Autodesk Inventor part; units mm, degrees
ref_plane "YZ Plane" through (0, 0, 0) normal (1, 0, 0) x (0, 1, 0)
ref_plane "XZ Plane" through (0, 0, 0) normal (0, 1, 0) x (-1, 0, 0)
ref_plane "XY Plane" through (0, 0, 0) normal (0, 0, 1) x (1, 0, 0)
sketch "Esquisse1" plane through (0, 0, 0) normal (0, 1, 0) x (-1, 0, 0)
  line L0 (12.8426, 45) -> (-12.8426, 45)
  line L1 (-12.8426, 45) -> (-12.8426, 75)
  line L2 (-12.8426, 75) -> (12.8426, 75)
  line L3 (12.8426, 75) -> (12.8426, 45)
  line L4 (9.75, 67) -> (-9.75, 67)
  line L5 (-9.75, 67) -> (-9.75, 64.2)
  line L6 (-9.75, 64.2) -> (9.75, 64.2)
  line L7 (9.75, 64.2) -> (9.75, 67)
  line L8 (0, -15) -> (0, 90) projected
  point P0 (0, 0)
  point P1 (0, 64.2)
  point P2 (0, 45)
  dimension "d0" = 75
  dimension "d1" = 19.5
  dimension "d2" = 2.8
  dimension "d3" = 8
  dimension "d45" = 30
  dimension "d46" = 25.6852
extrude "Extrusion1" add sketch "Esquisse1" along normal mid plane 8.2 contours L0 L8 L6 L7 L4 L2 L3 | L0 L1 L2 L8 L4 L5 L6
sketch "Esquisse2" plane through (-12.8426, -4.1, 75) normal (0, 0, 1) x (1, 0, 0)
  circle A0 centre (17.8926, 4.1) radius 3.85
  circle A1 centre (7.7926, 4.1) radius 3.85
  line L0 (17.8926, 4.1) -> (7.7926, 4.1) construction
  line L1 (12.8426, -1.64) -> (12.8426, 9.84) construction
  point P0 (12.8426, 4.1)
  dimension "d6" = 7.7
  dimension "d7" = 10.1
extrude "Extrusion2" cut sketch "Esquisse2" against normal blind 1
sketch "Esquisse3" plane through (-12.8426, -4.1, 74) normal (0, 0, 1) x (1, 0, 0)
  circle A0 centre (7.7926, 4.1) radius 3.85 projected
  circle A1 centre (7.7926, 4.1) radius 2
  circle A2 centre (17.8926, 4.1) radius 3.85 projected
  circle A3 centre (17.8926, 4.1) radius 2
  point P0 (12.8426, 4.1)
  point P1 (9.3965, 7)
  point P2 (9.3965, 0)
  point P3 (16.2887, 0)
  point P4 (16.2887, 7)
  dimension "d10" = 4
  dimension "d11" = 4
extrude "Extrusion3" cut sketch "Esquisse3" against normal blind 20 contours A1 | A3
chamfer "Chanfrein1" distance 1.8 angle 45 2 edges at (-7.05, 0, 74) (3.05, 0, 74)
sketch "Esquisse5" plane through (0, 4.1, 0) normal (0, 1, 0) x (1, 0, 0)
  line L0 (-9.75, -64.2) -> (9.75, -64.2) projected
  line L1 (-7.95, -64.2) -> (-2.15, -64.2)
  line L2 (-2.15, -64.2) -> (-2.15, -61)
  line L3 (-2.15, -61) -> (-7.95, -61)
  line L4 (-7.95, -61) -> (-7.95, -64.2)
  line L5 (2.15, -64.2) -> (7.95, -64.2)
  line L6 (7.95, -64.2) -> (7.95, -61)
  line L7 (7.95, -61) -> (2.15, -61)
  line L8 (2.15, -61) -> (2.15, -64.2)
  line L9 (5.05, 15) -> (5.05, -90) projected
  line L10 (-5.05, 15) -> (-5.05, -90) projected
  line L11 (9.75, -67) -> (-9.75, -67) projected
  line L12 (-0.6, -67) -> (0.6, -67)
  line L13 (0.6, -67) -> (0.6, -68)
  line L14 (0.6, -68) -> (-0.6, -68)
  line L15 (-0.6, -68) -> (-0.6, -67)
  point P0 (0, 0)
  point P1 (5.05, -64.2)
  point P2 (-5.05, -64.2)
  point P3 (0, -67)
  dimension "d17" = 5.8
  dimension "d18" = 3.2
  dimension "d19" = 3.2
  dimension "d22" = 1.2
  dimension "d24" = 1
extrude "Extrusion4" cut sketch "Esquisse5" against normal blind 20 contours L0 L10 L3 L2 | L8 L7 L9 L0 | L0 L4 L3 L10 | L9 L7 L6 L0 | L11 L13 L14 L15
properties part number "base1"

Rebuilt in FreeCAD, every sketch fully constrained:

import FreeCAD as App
import Part
import Sketcher
from FreeCAD import Vector


def edges_at(feature, points):
    """Names of the edges that pass closest to the given points."""
    edges = feature.Shape.Edges
    near = lambda p: min(range(len(edges)), key=lambda i: edges[i].distToShape(Part.Vertex(*p))[0])
    return sorted({f"Edge{near(p) + 1}" for p in points})

doc = App.newDocument("Part")
body = doc.addObject("PartDesign::Body", "Body")

sketch1 = body.newObject("Sketcher::SketchObject", "Sketch")
sketch1.AttachmentSupport = (doc.getObject("XZ_Plane"), [""])
sketch1.MapMode = "FlatFace"
sketch1.addGeometry(Part.LineSegment(Vector(-12.8, 45, 0), Vector(-12.8, 75, 0)), False)
sketch1.addGeometry(Part.LineSegment(Vector(-12.8, 75, 0), Vector(12.8, 75, 0)), False)
sketch1.addGeometry(Part.LineSegment(Vector(12.8, 75, 0), Vector(12.8, 45, 0)), False)
sketch1.addGeometry(Part.LineSegment(Vector(12.8, 45, 0), Vector(-12.8, 45, 0)), False)
sketch1.addGeometry(Part.LineSegment(Vector(-9.8, 64.2, 0), Vector(9.8, 64.2, 0)), False)
sketch1.addGeometry(Part.LineSegment(Vector(9.8, 64.2, 0), Vector(9.8, 67, 0)), False)
sketch1.addGeometry(Part.LineSegment(Vector(9.8, 67, 0), Vector(-9.8, 67, 0)), False)
sketch1.addGeometry(Part.LineSegment(Vector(-9.8, 67, 0), Vector(-9.8, 64.2, 0)), False)
sketch1.addConstraint(Sketcher.Constraint("Coincident", 0, 2, 1, 1))
sketch1.addConstraint(Sketcher.Constraint("Coincident", 1, 2, 2, 1))
sketch1.addConstraint(Sketcher.Constraint("Coincident", 2, 2, 3, 1))
sketch1.addConstraint(Sketcher.Constraint("Coincident", 3, 2, 0, 1))
sketch1.addConstraint(Sketcher.Constraint("Coincident", 4, 2, 5, 1))
sketch1.addConstraint(Sketcher.Constraint("Coincident", 5, 2, 6, 1))
sketch1.addConstraint(Sketcher.Constraint("Coincident", 6, 2, 7, 1))
sketch1.addConstraint(Sketcher.Constraint("Coincident", 7, 2, 4, 1))
sketch1.addConstraint(Sketcher.Constraint("Vertical", 0))
sketch1.addConstraint(Sketcher.Constraint("Horizontal", 1))
sketch1.addConstraint(Sketcher.Constraint("Vertical", 2))
sketch1.addConstraint(Sketcher.Constraint("Horizontal", 3))
sketch1.addConstraint(Sketcher.Constraint("Horizontal", 4))
sketch1.addConstraint(Sketcher.Constraint("Vertical", 5))
sketch1.addConstraint(Sketcher.Constraint("Horizontal", 6))
sketch1.addConstraint(Sketcher.Constraint("Vertical", 7))
sketch1.addConstraint(Sketcher.Constraint("DistanceY", 0, 1, 0, 2, 30.0))
sketch1.addConstraint(Sketcher.Constraint("DistanceX", 4, 1, 4, 2, 19.5))
sketch1.addConstraint(Sketcher.Constraint("DistanceY", 5, 1, 5, 2, 2.8))
sketch1.addConstraint(Sketcher.Constraint("DistanceY", -1, 1, 0, 2, 75.0))
sketch1.addConstraint(Sketcher.Constraint("DistanceY", 5, 2, 1, 2, 8.0))
sketch1.addConstraint(Sketcher.Constraint("DistanceX", 1, 1, 1, 2, 25.6852))
sketch1.addConstraint(Sketcher.Constraint("DistanceX", -1, 1, 4, 2, 9.75))
sketch1.addConstraint(Sketcher.Constraint("DistanceX", 0, 2, -1, 1, 12.8426))
pad1 = body.newObject("PartDesign::Pad", "Pad")
pad1.Profile = sketch1
pad1.Length = 8.2
pad1.Midplane = True

sketch2 = body.newObject("Sketcher::SketchObject", "Sketch001")
sketch2.AttachmentSupport = (doc.getObject("XY_Plane"), [""])
sketch2.MapMode = "FlatFace"
sketch2.AttachmentOffset = App.Placement(Vector(0, 0, 75), App.Rotation())
sketch2.addGeometry(Part.Circle(Vector(5, 0, 0), Vector(0, 0, 1), 3.9), False)
sketch2.addGeometry(Part.Circle(Vector(-5, 0, 0), Vector(0, 0, 1), 3.9), False)
sketch2.addConstraint(Sketcher.Constraint("Equal", 0, 1))
sketch2.addConstraint(Sketcher.Constraint("Symmetric", 0, 3, 1, 3, -1, 1))
sketch2.addConstraint(Sketcher.Constraint("PointOnObject", 0, 3, -1))
sketch2.addConstraint(Sketcher.Constraint("Diameter", 0, 7.7))
sketch2.addConstraint(Sketcher.Constraint("DistanceX", 1, 3, 0, 3, 10.1))
pocket1 = body.newObject("PartDesign::Pocket", "Pocket")
pocket1.Profile = sketch2
pocket1.Length = 1

sketch3 = body.newObject("Sketcher::SketchObject", "Sketch002")
sketch3.AttachmentSupport = (doc.getObject("XY_Plane"), [""])
sketch3.MapMode = "FlatFace"
sketch3.AttachmentOffset = App.Placement(Vector(0, 0, 74), App.Rotation())
sketch3.addGeometry(Part.Circle(Vector(-5, 0, 0), Vector(0, 0, 1), 2), False)
sketch3.addGeometry(Part.Circle(Vector(5, 0, 0), Vector(0, 0, 1), 2), False)
sketch3.addConstraint(Sketcher.Constraint("Equal", 0, 1))
sketch3.addConstraint(Sketcher.Constraint("Symmetric", 0, 3, 1, 3, -1, 1))
sketch3.addConstraint(Sketcher.Constraint("PointOnObject", 0, 3, -1))
sketch3.addConstraint(Sketcher.Constraint("Diameter", 0, 4.0))
sketch3.addConstraint(Sketcher.Constraint("DistanceX", 0, 3, 1, 3, 10.1))
pocket2 = body.newObject("PartDesign::Pocket", "Pocket001")
pocket2.Profile = sketch3
pocket2.Length = 20
doc.recompute()

chamfer = body.newObject("PartDesign::Chamfer", "Chamfer")
chamfer.Base = (pocket2, edges_at(pocket2, [(-7.05, 0, 74), (3.05, 0, 74)]))
chamfer.Size = 1.8

sketch4 = body.newObject("Sketcher::SketchObject", "Sketch003")
sketch4.AttachmentSupport = (doc.getObject("XZ_Plane"), [""])
sketch4.MapMode = "FlatFace"
sketch4.AttachmentOffset = App.Placement(Vector(0, 0, -4.1), App.Rotation())
sketch4.addGeometry(Part.LineSegment(Vector(-2.1, 64.2, 0), Vector(-2.1, 61, 0)), False)
sketch4.addGeometry(Part.LineSegment(Vector(-2.1, 61, 0), Vector(-8, 61, 0)), False)
sketch4.addGeometry(Part.LineSegment(Vector(-8, 61, 0), Vector(-8, 64.2, 0)), False)
sketch4.addGeometry(Part.LineSegment(Vector(-8, 64.2, 0), Vector(-2.1, 64.2, 0)), False)
sketch4.addGeometry(Part.LineSegment(Vector(2.1, 61, 0), Vector(2.1, 64.2, 0)), False)
sketch4.addGeometry(Part.LineSegment(Vector(2.1, 64.2, 0), Vector(8, 64.2, 0)), False)
sketch4.addGeometry(Part.LineSegment(Vector(8, 64.2, 0), Vector(8, 61, 0)), False)
sketch4.addGeometry(Part.LineSegment(Vector(8, 61, 0), Vector(2.1, 61, 0)), False)
sketch4.addGeometry(Part.LineSegment(Vector(0.6, 67, 0), Vector(-0.6, 67, 0)), False)
sketch4.addGeometry(Part.LineSegment(Vector(-0.6, 67, 0), Vector(-0.6, 68, 0)), False)
sketch4.addGeometry(Part.LineSegment(Vector(-0.6, 68, 0), Vector(0.6, 68, 0)), False)
sketch4.addGeometry(Part.LineSegment(Vector(0.6, 68, 0), Vector(0.6, 67, 0)), False)
sketch4.addConstraint(Sketcher.Constraint("Coincident", 0, 2, 1, 1))
sketch4.addConstraint(Sketcher.Constraint("Coincident", 1, 2, 2, 1))
sketch4.addConstraint(Sketcher.Constraint("Coincident", 2, 2, 3, 1))
sketch4.addConstraint(Sketcher.Constraint("Coincident", 3, 2, 0, 1))
sketch4.addConstraint(Sketcher.Constraint("Coincident", 4, 2, 5, 1))
sketch4.addConstraint(Sketcher.Constraint("Coincident", 5, 2, 6, 1))
sketch4.addConstraint(Sketcher.Constraint("Coincident", 6, 2, 7, 1))
sketch4.addConstraint(Sketcher.Constraint("Coincident", 7, 2, 4, 1))
sketch4.addConstraint(Sketcher.Constraint("Coincident", 8, 2, 9, 1))
sketch4.addConstraint(Sketcher.Constraint("Coincident", 9, 2, 10, 1))
sketch4.addConstraint(Sketcher.Constraint("Coincident", 10, 2, 11, 1))
sketch4.addConstraint(Sketcher.Constraint("Coincident", 11, 2, 8, 1))
sketch4.addConstraint(Sketcher.Constraint("Vertical", 0))
sketch4.addConstraint(Sketcher.Constraint("Horizontal", 1))
sketch4.addConstraint(Sketcher.Constraint("Vertical", 2))
sketch4.addConstraint(Sketcher.Constraint("Horizontal", 3))
sketch4.addConstraint(Sketcher.Constraint("Vertical", 4))
sketch4.addConstraint(Sketcher.Constraint("Horizontal", 5))
sketch4.addConstraint(Sketcher.Constraint("Vertical", 6))
sketch4.addConstraint(Sketcher.Constraint("Horizontal", 7))
sketch4.addConstraint(Sketcher.Constraint("Horizontal", 8))
sketch4.addConstraint(Sketcher.Constraint("Vertical", 9))
sketch4.addConstraint(Sketcher.Constraint("Horizontal", 10))
sketch4.addConstraint(Sketcher.Constraint("Vertical", 11))
sketch4.addConstraint(Sketcher.Constraint("Symmetric", 3, 2, 4, 2, -2))
sketch4.addConstraint(Sketcher.Constraint("Symmetric", 1, 2, 6, 2, -2))
sketch4.addConstraint(Sketcher.Constraint("DistanceY", 9, 1, 9, 2, 1.0))
sketch4.addConstraint(Sketcher.Constraint("DistanceX", 1, 2, 1, 1, 5.8))
sketch4.addConstraint(Sketcher.Constraint("DistanceX", 8, 2, 8, 1, 1.2))
sketch4.addConstraint(Sketcher.Constraint("DistanceY", 0, 2, 0, 1, 3.2))
sketch4.addConstraint(Sketcher.Constraint("DistanceY", -1, 1, 0, 2, 61.0))
sketch4.addConstraint(Sketcher.Constraint("DistanceY", -1, 1, 8, 2, 67.0))
sketch4.addConstraint(Sketcher.Constraint("DistanceX", 8, 2, -1, 1, 0.6))
sketch4.addConstraint(Sketcher.Constraint("DistanceX", 3, 2, 4, 2, 4.3))
pocket3 = body.newObject("PartDesign::Pocket", "Pocket002")
pocket3.Profile = sketch4
pocket3.Length = 20
pocket3.Reversed = True

doc.recompute()
